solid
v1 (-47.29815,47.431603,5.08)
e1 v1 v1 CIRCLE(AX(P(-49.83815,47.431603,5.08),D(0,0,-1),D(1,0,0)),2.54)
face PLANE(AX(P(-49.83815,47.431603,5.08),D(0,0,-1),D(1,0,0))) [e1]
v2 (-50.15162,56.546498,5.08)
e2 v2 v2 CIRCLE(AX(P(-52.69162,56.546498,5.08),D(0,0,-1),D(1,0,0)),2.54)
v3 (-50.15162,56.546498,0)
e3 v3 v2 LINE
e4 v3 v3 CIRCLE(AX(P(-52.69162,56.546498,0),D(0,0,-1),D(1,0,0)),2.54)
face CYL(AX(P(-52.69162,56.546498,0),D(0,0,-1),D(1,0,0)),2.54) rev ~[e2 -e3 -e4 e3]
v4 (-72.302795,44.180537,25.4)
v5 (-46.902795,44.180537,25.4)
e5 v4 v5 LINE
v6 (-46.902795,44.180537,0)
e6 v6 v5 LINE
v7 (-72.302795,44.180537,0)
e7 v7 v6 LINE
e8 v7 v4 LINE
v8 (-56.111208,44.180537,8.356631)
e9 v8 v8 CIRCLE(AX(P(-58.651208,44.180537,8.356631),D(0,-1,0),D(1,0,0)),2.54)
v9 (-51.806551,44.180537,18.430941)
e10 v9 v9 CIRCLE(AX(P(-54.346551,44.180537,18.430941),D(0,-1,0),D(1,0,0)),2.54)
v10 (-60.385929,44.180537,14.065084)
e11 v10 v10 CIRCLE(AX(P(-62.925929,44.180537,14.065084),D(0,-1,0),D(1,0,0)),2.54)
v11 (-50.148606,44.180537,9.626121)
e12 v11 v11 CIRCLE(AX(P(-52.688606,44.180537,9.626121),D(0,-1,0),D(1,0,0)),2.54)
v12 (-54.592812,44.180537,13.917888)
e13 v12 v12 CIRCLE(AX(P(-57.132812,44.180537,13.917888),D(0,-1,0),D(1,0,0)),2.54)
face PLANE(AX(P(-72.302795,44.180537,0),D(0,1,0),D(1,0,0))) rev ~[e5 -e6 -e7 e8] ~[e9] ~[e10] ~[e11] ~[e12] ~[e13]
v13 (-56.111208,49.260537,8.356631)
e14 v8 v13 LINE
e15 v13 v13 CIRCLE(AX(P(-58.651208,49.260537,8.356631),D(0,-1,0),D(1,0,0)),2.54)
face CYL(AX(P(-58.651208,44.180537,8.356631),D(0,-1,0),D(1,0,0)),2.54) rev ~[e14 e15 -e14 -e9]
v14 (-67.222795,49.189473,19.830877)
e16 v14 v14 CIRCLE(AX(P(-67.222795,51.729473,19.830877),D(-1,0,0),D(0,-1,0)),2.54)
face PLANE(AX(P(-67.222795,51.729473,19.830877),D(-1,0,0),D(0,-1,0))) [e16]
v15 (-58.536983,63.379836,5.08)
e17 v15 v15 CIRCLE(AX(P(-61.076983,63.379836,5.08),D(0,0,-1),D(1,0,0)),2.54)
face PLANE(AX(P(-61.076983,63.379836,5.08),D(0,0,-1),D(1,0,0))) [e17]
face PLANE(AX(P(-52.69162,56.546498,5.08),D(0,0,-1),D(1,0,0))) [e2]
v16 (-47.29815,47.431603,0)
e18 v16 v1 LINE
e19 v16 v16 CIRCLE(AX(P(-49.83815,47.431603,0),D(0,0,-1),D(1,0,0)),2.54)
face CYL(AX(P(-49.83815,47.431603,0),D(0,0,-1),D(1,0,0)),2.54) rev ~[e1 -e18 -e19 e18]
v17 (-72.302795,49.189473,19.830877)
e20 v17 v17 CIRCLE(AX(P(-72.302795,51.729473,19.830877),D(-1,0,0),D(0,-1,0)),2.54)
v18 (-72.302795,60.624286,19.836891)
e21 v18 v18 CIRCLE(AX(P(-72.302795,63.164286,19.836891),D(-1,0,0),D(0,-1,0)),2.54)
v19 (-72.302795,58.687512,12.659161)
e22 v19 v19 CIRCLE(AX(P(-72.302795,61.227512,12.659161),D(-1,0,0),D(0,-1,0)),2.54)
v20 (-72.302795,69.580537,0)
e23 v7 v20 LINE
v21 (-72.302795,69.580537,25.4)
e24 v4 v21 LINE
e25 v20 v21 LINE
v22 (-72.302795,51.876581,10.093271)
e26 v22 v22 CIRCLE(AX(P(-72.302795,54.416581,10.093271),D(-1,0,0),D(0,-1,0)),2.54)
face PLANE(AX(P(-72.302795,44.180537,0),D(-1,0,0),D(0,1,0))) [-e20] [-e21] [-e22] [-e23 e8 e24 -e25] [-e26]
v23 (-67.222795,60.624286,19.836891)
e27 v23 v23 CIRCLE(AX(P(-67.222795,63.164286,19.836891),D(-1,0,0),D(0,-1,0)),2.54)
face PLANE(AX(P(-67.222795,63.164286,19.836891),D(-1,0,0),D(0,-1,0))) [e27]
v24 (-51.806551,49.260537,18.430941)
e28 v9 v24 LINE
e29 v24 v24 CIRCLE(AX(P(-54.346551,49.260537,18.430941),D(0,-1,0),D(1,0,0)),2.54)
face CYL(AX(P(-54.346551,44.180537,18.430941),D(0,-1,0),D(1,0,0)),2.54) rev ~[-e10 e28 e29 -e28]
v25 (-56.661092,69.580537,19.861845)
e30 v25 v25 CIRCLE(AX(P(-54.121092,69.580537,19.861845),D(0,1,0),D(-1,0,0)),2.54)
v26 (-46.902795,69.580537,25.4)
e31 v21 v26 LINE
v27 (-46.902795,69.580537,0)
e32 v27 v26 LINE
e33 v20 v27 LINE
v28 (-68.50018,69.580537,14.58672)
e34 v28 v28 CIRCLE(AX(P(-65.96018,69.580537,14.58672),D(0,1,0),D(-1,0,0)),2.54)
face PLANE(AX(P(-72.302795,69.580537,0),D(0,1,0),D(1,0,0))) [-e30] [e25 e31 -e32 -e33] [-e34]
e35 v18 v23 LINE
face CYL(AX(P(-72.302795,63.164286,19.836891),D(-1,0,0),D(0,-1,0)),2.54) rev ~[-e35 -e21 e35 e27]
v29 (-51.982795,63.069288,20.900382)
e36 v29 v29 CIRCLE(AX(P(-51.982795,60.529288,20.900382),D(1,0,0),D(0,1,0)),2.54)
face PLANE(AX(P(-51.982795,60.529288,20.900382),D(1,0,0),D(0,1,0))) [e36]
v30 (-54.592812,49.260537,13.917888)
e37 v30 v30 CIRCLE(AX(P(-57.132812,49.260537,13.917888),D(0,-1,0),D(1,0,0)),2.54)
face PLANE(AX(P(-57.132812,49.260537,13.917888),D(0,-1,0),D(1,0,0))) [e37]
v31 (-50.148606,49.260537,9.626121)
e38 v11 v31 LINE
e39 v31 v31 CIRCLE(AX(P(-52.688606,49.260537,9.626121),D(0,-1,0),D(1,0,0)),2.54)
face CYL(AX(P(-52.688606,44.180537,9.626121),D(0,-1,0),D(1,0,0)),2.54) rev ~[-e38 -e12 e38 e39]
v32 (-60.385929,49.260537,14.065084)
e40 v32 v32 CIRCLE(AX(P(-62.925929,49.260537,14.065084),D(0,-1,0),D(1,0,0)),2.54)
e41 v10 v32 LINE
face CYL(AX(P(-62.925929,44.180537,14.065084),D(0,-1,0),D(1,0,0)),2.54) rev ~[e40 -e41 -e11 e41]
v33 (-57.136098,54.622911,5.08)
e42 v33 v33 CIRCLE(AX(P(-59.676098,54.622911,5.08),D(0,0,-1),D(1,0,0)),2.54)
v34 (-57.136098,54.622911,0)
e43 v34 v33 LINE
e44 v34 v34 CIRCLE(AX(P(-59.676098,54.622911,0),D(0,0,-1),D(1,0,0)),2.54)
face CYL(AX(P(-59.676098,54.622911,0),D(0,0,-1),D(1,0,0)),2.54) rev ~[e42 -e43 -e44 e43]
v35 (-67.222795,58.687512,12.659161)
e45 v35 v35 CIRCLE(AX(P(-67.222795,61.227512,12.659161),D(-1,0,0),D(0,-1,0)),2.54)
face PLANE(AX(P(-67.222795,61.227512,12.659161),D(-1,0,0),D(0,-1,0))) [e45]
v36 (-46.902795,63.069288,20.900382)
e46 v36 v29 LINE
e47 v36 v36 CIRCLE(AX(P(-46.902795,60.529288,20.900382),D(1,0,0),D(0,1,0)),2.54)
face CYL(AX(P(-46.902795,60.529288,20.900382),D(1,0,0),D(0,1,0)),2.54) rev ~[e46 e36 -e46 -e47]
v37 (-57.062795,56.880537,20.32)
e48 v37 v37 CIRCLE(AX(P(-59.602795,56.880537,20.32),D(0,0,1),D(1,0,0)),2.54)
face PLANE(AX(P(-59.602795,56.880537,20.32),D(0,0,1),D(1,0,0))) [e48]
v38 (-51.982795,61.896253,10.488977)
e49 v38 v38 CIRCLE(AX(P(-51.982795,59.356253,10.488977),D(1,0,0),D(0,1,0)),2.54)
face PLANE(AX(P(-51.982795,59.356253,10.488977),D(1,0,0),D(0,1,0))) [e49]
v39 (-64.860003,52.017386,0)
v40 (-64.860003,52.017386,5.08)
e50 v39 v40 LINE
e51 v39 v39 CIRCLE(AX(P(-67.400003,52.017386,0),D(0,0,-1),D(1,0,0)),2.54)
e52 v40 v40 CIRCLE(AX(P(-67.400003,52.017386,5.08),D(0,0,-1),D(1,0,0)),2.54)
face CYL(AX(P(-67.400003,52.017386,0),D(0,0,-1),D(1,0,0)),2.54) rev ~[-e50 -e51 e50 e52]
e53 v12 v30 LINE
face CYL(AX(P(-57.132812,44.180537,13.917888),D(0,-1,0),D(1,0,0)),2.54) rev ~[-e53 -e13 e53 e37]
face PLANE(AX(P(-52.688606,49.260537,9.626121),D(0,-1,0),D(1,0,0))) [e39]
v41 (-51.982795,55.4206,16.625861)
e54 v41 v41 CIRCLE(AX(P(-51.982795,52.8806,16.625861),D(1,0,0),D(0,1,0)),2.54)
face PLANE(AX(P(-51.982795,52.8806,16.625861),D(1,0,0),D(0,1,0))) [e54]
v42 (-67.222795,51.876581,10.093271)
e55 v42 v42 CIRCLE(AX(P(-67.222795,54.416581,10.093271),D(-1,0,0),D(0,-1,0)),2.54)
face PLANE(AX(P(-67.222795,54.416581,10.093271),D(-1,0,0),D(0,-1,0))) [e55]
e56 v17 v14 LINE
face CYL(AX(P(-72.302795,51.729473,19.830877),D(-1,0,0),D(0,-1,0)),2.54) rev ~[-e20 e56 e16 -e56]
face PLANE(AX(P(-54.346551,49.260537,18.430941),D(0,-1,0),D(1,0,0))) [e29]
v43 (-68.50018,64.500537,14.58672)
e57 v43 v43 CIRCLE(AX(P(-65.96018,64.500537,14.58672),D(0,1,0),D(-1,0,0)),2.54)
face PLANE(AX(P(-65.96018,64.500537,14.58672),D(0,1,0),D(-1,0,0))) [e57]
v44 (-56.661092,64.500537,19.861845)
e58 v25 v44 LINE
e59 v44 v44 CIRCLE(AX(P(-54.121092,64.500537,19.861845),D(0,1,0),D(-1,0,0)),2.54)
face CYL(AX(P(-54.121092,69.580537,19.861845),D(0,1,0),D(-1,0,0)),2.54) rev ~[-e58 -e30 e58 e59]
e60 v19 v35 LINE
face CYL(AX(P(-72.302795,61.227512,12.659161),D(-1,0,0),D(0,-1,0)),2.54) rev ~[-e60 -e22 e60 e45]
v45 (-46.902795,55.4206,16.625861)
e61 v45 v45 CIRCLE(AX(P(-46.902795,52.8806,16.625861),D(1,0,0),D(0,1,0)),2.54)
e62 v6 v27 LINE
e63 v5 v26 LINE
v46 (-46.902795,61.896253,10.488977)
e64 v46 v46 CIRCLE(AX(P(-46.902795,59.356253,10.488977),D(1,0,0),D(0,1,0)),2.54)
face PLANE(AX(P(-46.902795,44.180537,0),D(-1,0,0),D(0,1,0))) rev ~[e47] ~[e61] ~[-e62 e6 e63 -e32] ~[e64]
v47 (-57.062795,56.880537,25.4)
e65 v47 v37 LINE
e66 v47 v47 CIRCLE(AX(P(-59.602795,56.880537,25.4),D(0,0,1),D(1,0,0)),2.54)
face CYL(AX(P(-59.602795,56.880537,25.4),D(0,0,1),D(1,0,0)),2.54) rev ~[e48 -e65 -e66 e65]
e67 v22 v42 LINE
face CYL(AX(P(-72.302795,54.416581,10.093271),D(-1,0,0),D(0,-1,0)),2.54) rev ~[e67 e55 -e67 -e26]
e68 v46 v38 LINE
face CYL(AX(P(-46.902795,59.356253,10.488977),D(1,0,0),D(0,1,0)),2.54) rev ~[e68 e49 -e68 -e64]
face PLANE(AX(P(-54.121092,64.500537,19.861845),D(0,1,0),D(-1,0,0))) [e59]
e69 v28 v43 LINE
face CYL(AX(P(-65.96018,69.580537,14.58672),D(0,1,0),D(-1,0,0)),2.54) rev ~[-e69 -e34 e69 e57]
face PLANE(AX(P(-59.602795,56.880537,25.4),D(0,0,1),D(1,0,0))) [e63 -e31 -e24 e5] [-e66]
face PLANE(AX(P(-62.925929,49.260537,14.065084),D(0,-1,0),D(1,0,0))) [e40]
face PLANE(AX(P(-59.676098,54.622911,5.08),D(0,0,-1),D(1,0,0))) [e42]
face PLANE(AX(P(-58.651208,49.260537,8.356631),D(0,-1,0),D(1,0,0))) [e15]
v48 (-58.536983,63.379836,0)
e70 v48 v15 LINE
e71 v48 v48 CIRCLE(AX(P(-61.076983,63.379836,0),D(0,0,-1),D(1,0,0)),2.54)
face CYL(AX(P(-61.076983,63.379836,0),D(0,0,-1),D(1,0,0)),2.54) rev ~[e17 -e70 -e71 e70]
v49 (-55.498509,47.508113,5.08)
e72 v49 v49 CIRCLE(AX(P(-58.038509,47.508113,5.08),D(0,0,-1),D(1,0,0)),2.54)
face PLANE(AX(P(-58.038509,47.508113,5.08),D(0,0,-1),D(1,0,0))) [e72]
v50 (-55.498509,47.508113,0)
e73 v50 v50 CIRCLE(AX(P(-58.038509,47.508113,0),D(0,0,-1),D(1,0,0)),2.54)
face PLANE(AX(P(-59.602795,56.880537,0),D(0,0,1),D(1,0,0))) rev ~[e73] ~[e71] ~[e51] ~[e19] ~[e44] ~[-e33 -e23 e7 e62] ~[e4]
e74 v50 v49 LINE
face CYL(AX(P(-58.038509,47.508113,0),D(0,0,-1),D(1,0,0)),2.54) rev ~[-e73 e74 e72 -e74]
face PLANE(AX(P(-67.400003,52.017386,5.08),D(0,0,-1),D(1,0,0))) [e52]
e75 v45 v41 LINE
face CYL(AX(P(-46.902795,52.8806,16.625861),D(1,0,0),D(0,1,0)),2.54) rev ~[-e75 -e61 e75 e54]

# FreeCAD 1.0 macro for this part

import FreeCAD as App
import Part
import Sketcher
Q = App.Units.Quantity


def add_polygon(sketch, points):
    """Adds a closed chain of lines whose ends are joined by coincident constraints."""
    first, n = sketch.GeometryCount, len(points)
    for a, b in zip(points, points[1:] + points[:1]):
        sketch.addGeometry(Part.LineSegment(App.Vector(*a, 0), App.Vector(*b, 0)), False)
    for i in range(n):
        sketch.addConstraint(Sketcher.Constraint("Coincident", first + i, 2, first + (i + 1) % n, 1))

doc = App.newDocument("Part")
body = doc.addObject("PartDesign::Body", "Body")

# Sketch on XY plane
sketch1 = doc.addObject("Sketcher::SketchObject", "Sketch")
body.addObject(sketch1)
sketch1.AttachmentSupport = (doc.XY_Plane, [""])
sketch1.MapMode = "FlatFace"
add_polygon(sketch1, [(-72.302795, 69.580537), (-72.302795, 44.180537), (-46.902795, 44.180537), (-46.902795, 69.580537)])  # lines 0-3
sketch1.addConstraint(Sketcher.Constraint("Vertical", 0))
sketch1.addConstraint(Sketcher.Constraint("Horizontal", 1))
sketch1.addConstraint(Sketcher.Constraint("Vertical", 2))
sketch1.addConstraint(Sketcher.Constraint("Horizontal", 3))
sketch1.addConstraint(Sketcher.Constraint("Equal", 3, 0))
sketch1.addConstraint(Sketcher.Constraint("DistanceX", 1, 1, 1, 2, Q("1 in")))
sketch1.addConstraint(Sketcher.Constraint("DistanceX", 0, 2, -1, 1, 72.302795))
sketch1.addConstraint(Sketcher.Constraint("DistanceY", -1, 1, 0, 2, 44.180537))
pad1 = doc.addObject("PartDesign::Pad", "Pad")
body.addObject(pad1)
pad1.Profile = sketch1
pad1.Length = Q("1 in")

# Sketch on XY plane
sketch2 = doc.addObject("Sketcher::SketchObject", "Sketch001")
body.addObject(sketch2)
sketch2.AttachmentSupport = (doc.XY_Plane, [""])
sketch2.MapMode = "FlatFace"
sketch2.AttachmentOffset = App.Placement(App.Vector(0, 0, 1 * 25.4), App.Rotation())
sketch2.addGeometry(Part.Circle(App.Vector(-59.602795, 56.880537, 0), App.Vector(0, 0, 1), 2.54), False)
sketch2.addConstraint(Sketcher.Constraint("Diameter", 0, Q("0.2 in")))
sketch2.addConstraint(Sketcher.Constraint("DistanceX", 0, 3, -1, 1, 59.602795))
sketch2.addConstraint(Sketcher.Constraint("DistanceY", -1, 1, 0, 3, 56.880537))
pocket1 = doc.addObject("PartDesign::Pocket", "Pocket")
body.addObject(pocket1)
pocket1.Profile = sketch2
pocket1.Length = Q("0.2 in")

# Sketch on XY plane
sketch3 = doc.addObject("Sketcher::SketchObject", "Sketch002")
body.addObject(sketch3)
sketch3.AttachmentSupport = (doc.XY_Plane, [""])
sketch3.MapMode = "FlatFace"
sketch3.addGeometry(Part.Circle(App.Vector(-49.83815, 47.431603, 0), App.Vector(0, 0, 1), 2.54), False)
sketch3.addGeometry(Part.Circle(App.Vector(-52.69162, 56.546498, 0), App.Vector(0, 0, 1), 2.54), False)
sketch3.addGeometry(Part.Circle(App.Vector(-61.076983, 63.379836, 0), App.Vector(0, 0, 1), 2.54), False)
sketch3.addGeometry(Part.Circle(App.Vector(-59.676098, 54.622911, 0), App.Vector(0, 0, 1), 2.54), False)
sketch3.addGeometry(Part.Circle(App.Vector(-58.038509, 47.508113, 0), App.Vector(0, 0, 1), 2.54), False)
sketch3.addGeometry(Part.Circle(App.Vector(-67.400003, 52.017386, 0), App.Vector(0, 0, 1), 2.54), False)
sketch3.addConstraint(Sketcher.Constraint("Equal", 0, 1))
sketch3.addConstraint(Sketcher.Constraint("Equal", 1, 2))
sketch3.addConstraint(Sketcher.Constraint("Equal", 2, 3))
sketch3.addConstraint(Sketcher.Constraint("Equal", 3, 4))
sketch3.addConstraint(Sketcher.Constraint("Equal", 4, 5))
sketch3.addConstraint(Sketcher.Constraint("Diameter", 0, Q("0.2 in")))
sketch3.addConstraint(Sketcher.Constraint("DistanceX", 3, 3, -1, 1, 59.676098))
sketch3.addConstraint(Sketcher.Constraint("DistanceY", 4, 3, 3, 3, 7.114798))
sketch3.addConstraint(Sketcher.Constraint("DistanceX", 0, 3, -1, 1, 49.83815))
sketch3.addConstraint(Sketcher.Constraint("DistanceX", 1, 3, -1, 1, 52.69162))
sketch3.addConstraint(Sketcher.Constraint("DistanceY", -1, 1, 3, 3, 54.622911))
sketch3.addConstraint(Sketcher.Constraint("DistanceX", 4, 3, -1, 1, 58.038509))
sketch3.addConstraint(Sketcher.Constraint("DistanceY", 0, 3, 4, 3, 0.07651))
sketch3.addConstraint(Sketcher.Constraint("DistanceX", 5, 3, 2, 3, 6.32302))
sketch3.addConstraint(Sketcher.Constraint("DistanceY", 5, 3, 2, 3, 11.36245))
sketch3.addConstraint(Sketcher.Constraint("DistanceY", 5, 3, 1, 3, 4.529112))
sketch3.addConstraint(Sketcher.Constraint("DistanceY", -1, 1, 1, 3, 56.546498))
sketch3.addConstraint(Sketcher.Constraint("DistanceX", 2, 3, -1, 1, 61.076983))
pocket2 = doc.addObject("PartDesign::Pocket", "Pocket001")
body.addObject(pocket2)
pocket2.Profile = sketch3
pocket2.Length = Q("0.2 in")
pocket2.Reversed = True

# Sketch on XZ plane
sketch4 = doc.addObject("Sketcher::SketchObject", "Sketch003")
body.addObject(sketch4)
sketch4.AttachmentSupport = (doc.XZ_Plane, [""])
sketch4.MapMode = "FlatFace"
sketch4.AttachmentOffset = App.Placement(App.Vector(0, 0, -44.180537), App.Rotation())
sketch4.addGeometry(Part.Circle(App.Vector(-54.346551, 18.430941, 0), App.Vector(0, 0, 1), 2.54), False)
sketch4.addGeometry(Part.Circle(App.Vector(-57.132812, 13.917888, 0), App.Vector(0, 0, 1), 2.54), False)
sketch4.addGeometry(Part.Circle(App.Vector(-62.925929, 14.065084, 0), App.Vector(0, 0, 1), 2.54), False)
sketch4.addGeometry(Part.Circle(App.Vector(-52.688606, 9.626121, 0), App.Vector(0, 0, 1), 2.54), False)
sketch4.addGeometry(Part.Circle(App.Vector(-58.651208, 8.356631, 0), App.Vector(0, 0, 1), 2.54), False)
sketch4.addConstraint(Sketcher.Constraint("Equal", 0, 1))
sketch4.addConstraint(Sketcher.Constraint("Equal", 1, 2))
sketch4.addConstraint(Sketcher.Constraint("Equal", 2, 3))
sketch4.addConstraint(Sketcher.Constraint("Equal", 3, 4))
sketch4.addConstraint(Sketcher.Constraint("Diameter", 0, Q("0.2 in")))
sketch4.addConstraint(Sketcher.Constraint("DistanceX", 4, 3, 3, 3, 5.962602))
sketch4.addConstraint(Sketcher.Constraint("DistanceX", 0, 3, -1, 1, 54.346551))
sketch4.addConstraint(Sketcher.Constraint("DistanceY", -1, 1, 0, 3, 18.430941))
sketch4.addConstraint(Sketcher.Constraint("DistanceX", 2, 3, -1, 1, 62.925929))
sketch4.addConstraint(Sketcher.Constraint("DistanceY", -1, 1, 3, 3, 9.626121))
sketch4.addConstraint(Sketcher.Constraint("DistanceY", -1, 1, 4, 3, 8.356631))
sketch4.addConstraint(Sketcher.Constraint("DistanceX", 1, 3, 0, 3, 2.786261))
sketch4.addConstraint(Sketcher.Constraint("DistanceX", 2, 3, 4, 3, 4.274721))
sketch4.addConstraint(Sketcher.Constraint("DistanceY", -1, 1, 1, 3, 13.917888))
sketch4.addConstraint(Sketcher.Constraint("DistanceY", -1, 1, 2, 3, 14.065084))
pocket3 = doc.addObject("PartDesign::Pocket", "Pocket002")
body.addObject(pocket3)
pocket3.Profile = sketch4
pocket3.Length = Q("0.2 in")

# Sketch on XZ plane
sketch5 = doc.addObject("Sketcher::SketchObject", "Sketch004")
body.addObject(sketch5)
sketch5.AttachmentSupport = (doc.XZ_Plane, [""])
sketch5.MapMode = "FlatFace"
sketch5.AttachmentOffset = App.Placement(App.Vector(0, 0, -69.580537), App.Rotation())
sketch5.addGeometry(Part.Circle(App.Vector(-54.121092, 19.861845, 0), App.Vector(0, 0, 1), 2.54), False)
sketch5.addGeometry(Part.Circle(App.Vector(-65.96018, 14.58672, 0), App.Vector(0, 0, 1), 2.54), False)
sketch5.addConstraint(Sketcher.Constraint("Equal", 0, 1))
sketch5.addConstraint(Sketcher.Constraint("Diameter", 0, Q("0.2 in")))
sketch5.addConstraint(Sketcher.Constraint("DistanceX", 0, 3, -1, 1, 54.121092))
sketch5.addConstraint(Sketcher.Constraint("DistanceX", 1, 3, -1, 1, 65.96018))
sketch5.addConstraint(Sketcher.Constraint("DistanceY", -1, 1, 1, 3, 14.58672))
sketch5.addConstraint(Sketcher.Constraint("DistanceY", -1, 1, 0, 3, 19.861845))
pocket4 = doc.addObject("PartDesign::Pocket", "Pocket003")
body.addObject(pocket4)
pocket4.Profile = sketch5
pocket4.Length = Q("0.2 in")
pocket4.Reversed = True

# Sketch on YZ plane
sketch6 = doc.addObject("Sketcher::SketchObject", "Sketch005")
body.addObject(sketch6)
sketch6.AttachmentSupport = (doc.YZ_Plane, [""])
sketch6.MapMode = "FlatFace"
sketch6.AttachmentOffset = App.Placement(App.Vector(0, 0, -72.302795), App.Rotation())
sketch6.addGeometry(Part.Circle(App.Vector(61.227512, 12.659161, 0), App.Vector(0, 0, 1), 2.54), False)
sketch6.addGeometry(Part.Circle(App.Vector(54.416581, 10.093271, 0), App.Vector(0, 0, 1), 2.54), False)
sketch6.addGeometry(Part.Circle(App.Vector(51.729473, 19.830877, 0), App.Vector(0, 0, 1), 2.54), False)
sketch6.addGeometry(Part.Circle(App.Vector(63.164286, 19.836891, 0), App.Vector(0, 0, 1), 2.54), False)
sketch6.addConstraint(Sketcher.Constraint("Equal", 0, 1))
sketch6.addConstraint(Sketcher.Constraint("Equal", 1, 2))
sketch6.addConstraint(Sketcher.Constraint("Equal", 2, 3))
sketch6.addConstraint(Sketcher.Constraint("Diameter", 0, Q("0.2 in")))
sketch6.addConstraint(Sketcher.Constraint("DistanceX", -1, 1, 0, 3, 61.227512))
sketch6.addConstraint(Sketcher.Constraint("DistanceY", -1, 1, 0, 3, 12.659161))
sketch6.addConstraint(Sketcher.Constraint("DistanceX", -1, 1, 1, 3, 54.416581))
sketch6.addConstraint(Sketcher.Constraint("DistanceY", -1, 1, 1, 3, 10.093271))
sketch6.addConstraint(Sketcher.Constraint("DistanceY", -1, 1, 3, 3, 19.836891))
sketch6.addConstraint(Sketcher.Constraint("DistanceX", 2, 3, 1, 3, 2.687108))
sketch6.addConstraint(Sketcher.Constraint("DistanceY", -1, 1, 2, 3, 19.830877))
sketch6.addConstraint(Sketcher.Constraint("DistanceX", -1, 1, 3, 3, 63.164286))
pocket5 = doc.addObject("PartDesign::Pocket", "Pocket004")
body.addObject(pocket5)
pocket5.Profile = sketch6
pocket5.Length = Q("0.2 in")
pocket5.Reversed = True

# Sketch on YZ plane
sketch7 = doc.addObject("Sketcher::SketchObject", "Sketch006")
body.addObject(sketch7)
sketch7.AttachmentSupport = (doc.YZ_Plane, [""])
sketch7.MapMode = "FlatFace"
sketch7.AttachmentOffset = App.Placement(App.Vector(0, 0, -46.902795), App.Rotation())
sketch7.addGeometry(Part.Circle(App.Vector(52.8806, 16.625861, 0), App.Vector(0, 0, 1), 2.54), False)
sketch7.addGeometry(Part.Circle(App.Vector(59.356253, 10.488977, 0), App.Vector(0, 0, 1), 2.54), False)
sketch7.addGeometry(Part.Circle(App.Vector(60.529288, 20.900382, 0), App.Vector(0, 0, 1), 2.54), False)
sketch7.addConstraint(Sketcher.Constraint("Equal", 0, 1))
sketch7.addConstraint(Sketcher.Constraint("Equal", 1, 2))
sketch7.addConstraint(Sketcher.Constraint("Diameter", 0, Q("0.2 in")))
sketch7.addConstraint(Sketcher.Constraint("DistanceX", -1, 1, 0, 3, 52.8806))
sketch7.addConstraint(Sketcher.Constraint("DistanceY", -1, 1, 0, 3, 16.625861))
sketch7.addConstraint(Sketcher.Constraint("DistanceY", 0, 3, 2, 3, 4.274521))
sketch7.addConstraint(Sketcher.Constraint("DistanceX", -1, 1, 1, 3, 59.356253))
sketch7.addConstraint(Sketcher.Constraint("DistanceY", -1, 1, 1, 3, 10.488977))
sketch7.addConstraint(Sketcher.Constraint("DistanceX", -1, 1, 2, 3, 60.529288))
pocket6 = doc.addObject("PartDesign::Pocket", "Pocket005")
body.addObject(pocket6)
pocket6.Profile = sketch7
pocket6.Length = Q("0.2 in")

doc.recompute()
